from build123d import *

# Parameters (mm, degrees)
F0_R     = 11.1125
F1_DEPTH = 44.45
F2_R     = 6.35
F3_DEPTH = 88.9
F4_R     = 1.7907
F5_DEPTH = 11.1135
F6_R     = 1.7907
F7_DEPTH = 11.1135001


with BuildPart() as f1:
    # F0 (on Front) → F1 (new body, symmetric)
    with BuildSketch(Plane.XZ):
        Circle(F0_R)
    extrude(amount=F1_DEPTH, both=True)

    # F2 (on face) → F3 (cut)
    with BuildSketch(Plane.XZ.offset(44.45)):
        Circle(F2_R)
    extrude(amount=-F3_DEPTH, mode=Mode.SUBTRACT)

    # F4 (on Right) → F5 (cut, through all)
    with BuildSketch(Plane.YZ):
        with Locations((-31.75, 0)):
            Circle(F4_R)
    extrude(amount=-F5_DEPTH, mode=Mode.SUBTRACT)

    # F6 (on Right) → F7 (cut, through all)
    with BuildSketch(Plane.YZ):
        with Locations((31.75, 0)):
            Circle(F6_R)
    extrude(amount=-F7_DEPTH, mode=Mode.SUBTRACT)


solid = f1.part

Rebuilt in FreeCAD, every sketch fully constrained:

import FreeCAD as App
import Part
import Sketcher
from FreeCAD import Vector
Q = App.Units.Quantity

doc = App.newDocument("Part")
body = doc.addObject("PartDesign::Body", "Body")

# Sketch on XZ plane
sketch1 = body.newObject("Sketcher::SketchObject", "Sketch")
sketch1.AttachmentSupport = (doc.getObject("XZ_Plane"), [""])
sketch1.MapMode = "FlatFace"
sketch1.addGeometry(Part.Circle(Vector(0, 0, 0), Vector(0, 0, 1), 11), False)
sketch1.addConstraint(Sketcher.Constraint("Coincident", 0, 3, -1, 1))
sketch1.addConstraint(Sketcher.Constraint("Diameter", 0, Q("0.875 in")))
pad1 = body.newObject("PartDesign::Pad", "Pad")
pad1.Profile = sketch1
pad1.Length = Q("3.5 in")
pad1.Midplane = True

# Sketch on XZ plane
sketch2 = body.newObject("Sketcher::SketchObject", "Sketch001")
sketch2.AttachmentSupport = (doc.getObject("XZ_Plane"), [""])
sketch2.MapMode = "FlatFace"
sketch2.AttachmentOffset = App.Placement(Vector(0, 0, 1.75 * 25.4), App.Rotation())
sketch2.addGeometry(Part.Circle(Vector(0, 0, 0), Vector(0, 0, 1), 6), False)
sketch2.addConstraint(Sketcher.Constraint("Coincident", 0, 3, -1, 1))
sketch2.addConstraint(Sketcher.Constraint("Diameter", 0, Q("0.5 in")))
pocket1 = body.newObject("PartDesign::Pocket", "Pocket")
pocket1.Profile = sketch2
pocket1.Length = Q("3.5 in")

# Sketch on YZ plane
sketch3 = body.newObject("Sketcher::SketchObject", "Sketch002")
sketch3.AttachmentSupport = (doc.getObject("YZ_Plane"), [""])
sketch3.MapMode = "FlatFace"
sketch3.addGeometry(Part.Circle(Vector(-31.8, 0, 0), Vector(0, 0, 1), 1.8), False)
sketch3.addConstraint(Sketcher.Constraint("PointOnObject", 0, 3, -1))
sketch3.addConstraint(Sketcher.Constraint("Diameter", 0, Q("0.141 in")))
sketch3.addConstraint(Sketcher.Constraint("DistanceX", 0, 3, -1, 1, Q("1.25 in")))
pocket2 = body.newObject("PartDesign::Pocket", "Pocket001")
pocket2.Profile = sketch3
pocket2.Type = "ThroughAll"

# Sketch on YZ plane
sketch4 = body.newObject("Sketcher::SketchObject", "Sketch003")
sketch4.AttachmentSupport = (doc.getObject("YZ_Plane"), [""])
sketch4.MapMode = "FlatFace"
sketch4.addGeometry(Part.Circle(Vector(31.8, 0, 0), Vector(0, 0, 1), 1.8), False)
sketch4.addConstraint(Sketcher.Constraint("PointOnObject", 0, 3, -1))
sketch4.addConstraint(Sketcher.Constraint("Diameter", 0, Q("0.141 in")))
sketch4.addConstraint(Sketcher.Constraint("DistanceX", -1, 1, 0, 3, Q("1.25 in")))
pocket3 = body.newObject("PartDesign::Pocket", "Pocket002")
pocket3.Profile = sketch4
pocket3.Type = "ThroughAll"

doc.recompute()
